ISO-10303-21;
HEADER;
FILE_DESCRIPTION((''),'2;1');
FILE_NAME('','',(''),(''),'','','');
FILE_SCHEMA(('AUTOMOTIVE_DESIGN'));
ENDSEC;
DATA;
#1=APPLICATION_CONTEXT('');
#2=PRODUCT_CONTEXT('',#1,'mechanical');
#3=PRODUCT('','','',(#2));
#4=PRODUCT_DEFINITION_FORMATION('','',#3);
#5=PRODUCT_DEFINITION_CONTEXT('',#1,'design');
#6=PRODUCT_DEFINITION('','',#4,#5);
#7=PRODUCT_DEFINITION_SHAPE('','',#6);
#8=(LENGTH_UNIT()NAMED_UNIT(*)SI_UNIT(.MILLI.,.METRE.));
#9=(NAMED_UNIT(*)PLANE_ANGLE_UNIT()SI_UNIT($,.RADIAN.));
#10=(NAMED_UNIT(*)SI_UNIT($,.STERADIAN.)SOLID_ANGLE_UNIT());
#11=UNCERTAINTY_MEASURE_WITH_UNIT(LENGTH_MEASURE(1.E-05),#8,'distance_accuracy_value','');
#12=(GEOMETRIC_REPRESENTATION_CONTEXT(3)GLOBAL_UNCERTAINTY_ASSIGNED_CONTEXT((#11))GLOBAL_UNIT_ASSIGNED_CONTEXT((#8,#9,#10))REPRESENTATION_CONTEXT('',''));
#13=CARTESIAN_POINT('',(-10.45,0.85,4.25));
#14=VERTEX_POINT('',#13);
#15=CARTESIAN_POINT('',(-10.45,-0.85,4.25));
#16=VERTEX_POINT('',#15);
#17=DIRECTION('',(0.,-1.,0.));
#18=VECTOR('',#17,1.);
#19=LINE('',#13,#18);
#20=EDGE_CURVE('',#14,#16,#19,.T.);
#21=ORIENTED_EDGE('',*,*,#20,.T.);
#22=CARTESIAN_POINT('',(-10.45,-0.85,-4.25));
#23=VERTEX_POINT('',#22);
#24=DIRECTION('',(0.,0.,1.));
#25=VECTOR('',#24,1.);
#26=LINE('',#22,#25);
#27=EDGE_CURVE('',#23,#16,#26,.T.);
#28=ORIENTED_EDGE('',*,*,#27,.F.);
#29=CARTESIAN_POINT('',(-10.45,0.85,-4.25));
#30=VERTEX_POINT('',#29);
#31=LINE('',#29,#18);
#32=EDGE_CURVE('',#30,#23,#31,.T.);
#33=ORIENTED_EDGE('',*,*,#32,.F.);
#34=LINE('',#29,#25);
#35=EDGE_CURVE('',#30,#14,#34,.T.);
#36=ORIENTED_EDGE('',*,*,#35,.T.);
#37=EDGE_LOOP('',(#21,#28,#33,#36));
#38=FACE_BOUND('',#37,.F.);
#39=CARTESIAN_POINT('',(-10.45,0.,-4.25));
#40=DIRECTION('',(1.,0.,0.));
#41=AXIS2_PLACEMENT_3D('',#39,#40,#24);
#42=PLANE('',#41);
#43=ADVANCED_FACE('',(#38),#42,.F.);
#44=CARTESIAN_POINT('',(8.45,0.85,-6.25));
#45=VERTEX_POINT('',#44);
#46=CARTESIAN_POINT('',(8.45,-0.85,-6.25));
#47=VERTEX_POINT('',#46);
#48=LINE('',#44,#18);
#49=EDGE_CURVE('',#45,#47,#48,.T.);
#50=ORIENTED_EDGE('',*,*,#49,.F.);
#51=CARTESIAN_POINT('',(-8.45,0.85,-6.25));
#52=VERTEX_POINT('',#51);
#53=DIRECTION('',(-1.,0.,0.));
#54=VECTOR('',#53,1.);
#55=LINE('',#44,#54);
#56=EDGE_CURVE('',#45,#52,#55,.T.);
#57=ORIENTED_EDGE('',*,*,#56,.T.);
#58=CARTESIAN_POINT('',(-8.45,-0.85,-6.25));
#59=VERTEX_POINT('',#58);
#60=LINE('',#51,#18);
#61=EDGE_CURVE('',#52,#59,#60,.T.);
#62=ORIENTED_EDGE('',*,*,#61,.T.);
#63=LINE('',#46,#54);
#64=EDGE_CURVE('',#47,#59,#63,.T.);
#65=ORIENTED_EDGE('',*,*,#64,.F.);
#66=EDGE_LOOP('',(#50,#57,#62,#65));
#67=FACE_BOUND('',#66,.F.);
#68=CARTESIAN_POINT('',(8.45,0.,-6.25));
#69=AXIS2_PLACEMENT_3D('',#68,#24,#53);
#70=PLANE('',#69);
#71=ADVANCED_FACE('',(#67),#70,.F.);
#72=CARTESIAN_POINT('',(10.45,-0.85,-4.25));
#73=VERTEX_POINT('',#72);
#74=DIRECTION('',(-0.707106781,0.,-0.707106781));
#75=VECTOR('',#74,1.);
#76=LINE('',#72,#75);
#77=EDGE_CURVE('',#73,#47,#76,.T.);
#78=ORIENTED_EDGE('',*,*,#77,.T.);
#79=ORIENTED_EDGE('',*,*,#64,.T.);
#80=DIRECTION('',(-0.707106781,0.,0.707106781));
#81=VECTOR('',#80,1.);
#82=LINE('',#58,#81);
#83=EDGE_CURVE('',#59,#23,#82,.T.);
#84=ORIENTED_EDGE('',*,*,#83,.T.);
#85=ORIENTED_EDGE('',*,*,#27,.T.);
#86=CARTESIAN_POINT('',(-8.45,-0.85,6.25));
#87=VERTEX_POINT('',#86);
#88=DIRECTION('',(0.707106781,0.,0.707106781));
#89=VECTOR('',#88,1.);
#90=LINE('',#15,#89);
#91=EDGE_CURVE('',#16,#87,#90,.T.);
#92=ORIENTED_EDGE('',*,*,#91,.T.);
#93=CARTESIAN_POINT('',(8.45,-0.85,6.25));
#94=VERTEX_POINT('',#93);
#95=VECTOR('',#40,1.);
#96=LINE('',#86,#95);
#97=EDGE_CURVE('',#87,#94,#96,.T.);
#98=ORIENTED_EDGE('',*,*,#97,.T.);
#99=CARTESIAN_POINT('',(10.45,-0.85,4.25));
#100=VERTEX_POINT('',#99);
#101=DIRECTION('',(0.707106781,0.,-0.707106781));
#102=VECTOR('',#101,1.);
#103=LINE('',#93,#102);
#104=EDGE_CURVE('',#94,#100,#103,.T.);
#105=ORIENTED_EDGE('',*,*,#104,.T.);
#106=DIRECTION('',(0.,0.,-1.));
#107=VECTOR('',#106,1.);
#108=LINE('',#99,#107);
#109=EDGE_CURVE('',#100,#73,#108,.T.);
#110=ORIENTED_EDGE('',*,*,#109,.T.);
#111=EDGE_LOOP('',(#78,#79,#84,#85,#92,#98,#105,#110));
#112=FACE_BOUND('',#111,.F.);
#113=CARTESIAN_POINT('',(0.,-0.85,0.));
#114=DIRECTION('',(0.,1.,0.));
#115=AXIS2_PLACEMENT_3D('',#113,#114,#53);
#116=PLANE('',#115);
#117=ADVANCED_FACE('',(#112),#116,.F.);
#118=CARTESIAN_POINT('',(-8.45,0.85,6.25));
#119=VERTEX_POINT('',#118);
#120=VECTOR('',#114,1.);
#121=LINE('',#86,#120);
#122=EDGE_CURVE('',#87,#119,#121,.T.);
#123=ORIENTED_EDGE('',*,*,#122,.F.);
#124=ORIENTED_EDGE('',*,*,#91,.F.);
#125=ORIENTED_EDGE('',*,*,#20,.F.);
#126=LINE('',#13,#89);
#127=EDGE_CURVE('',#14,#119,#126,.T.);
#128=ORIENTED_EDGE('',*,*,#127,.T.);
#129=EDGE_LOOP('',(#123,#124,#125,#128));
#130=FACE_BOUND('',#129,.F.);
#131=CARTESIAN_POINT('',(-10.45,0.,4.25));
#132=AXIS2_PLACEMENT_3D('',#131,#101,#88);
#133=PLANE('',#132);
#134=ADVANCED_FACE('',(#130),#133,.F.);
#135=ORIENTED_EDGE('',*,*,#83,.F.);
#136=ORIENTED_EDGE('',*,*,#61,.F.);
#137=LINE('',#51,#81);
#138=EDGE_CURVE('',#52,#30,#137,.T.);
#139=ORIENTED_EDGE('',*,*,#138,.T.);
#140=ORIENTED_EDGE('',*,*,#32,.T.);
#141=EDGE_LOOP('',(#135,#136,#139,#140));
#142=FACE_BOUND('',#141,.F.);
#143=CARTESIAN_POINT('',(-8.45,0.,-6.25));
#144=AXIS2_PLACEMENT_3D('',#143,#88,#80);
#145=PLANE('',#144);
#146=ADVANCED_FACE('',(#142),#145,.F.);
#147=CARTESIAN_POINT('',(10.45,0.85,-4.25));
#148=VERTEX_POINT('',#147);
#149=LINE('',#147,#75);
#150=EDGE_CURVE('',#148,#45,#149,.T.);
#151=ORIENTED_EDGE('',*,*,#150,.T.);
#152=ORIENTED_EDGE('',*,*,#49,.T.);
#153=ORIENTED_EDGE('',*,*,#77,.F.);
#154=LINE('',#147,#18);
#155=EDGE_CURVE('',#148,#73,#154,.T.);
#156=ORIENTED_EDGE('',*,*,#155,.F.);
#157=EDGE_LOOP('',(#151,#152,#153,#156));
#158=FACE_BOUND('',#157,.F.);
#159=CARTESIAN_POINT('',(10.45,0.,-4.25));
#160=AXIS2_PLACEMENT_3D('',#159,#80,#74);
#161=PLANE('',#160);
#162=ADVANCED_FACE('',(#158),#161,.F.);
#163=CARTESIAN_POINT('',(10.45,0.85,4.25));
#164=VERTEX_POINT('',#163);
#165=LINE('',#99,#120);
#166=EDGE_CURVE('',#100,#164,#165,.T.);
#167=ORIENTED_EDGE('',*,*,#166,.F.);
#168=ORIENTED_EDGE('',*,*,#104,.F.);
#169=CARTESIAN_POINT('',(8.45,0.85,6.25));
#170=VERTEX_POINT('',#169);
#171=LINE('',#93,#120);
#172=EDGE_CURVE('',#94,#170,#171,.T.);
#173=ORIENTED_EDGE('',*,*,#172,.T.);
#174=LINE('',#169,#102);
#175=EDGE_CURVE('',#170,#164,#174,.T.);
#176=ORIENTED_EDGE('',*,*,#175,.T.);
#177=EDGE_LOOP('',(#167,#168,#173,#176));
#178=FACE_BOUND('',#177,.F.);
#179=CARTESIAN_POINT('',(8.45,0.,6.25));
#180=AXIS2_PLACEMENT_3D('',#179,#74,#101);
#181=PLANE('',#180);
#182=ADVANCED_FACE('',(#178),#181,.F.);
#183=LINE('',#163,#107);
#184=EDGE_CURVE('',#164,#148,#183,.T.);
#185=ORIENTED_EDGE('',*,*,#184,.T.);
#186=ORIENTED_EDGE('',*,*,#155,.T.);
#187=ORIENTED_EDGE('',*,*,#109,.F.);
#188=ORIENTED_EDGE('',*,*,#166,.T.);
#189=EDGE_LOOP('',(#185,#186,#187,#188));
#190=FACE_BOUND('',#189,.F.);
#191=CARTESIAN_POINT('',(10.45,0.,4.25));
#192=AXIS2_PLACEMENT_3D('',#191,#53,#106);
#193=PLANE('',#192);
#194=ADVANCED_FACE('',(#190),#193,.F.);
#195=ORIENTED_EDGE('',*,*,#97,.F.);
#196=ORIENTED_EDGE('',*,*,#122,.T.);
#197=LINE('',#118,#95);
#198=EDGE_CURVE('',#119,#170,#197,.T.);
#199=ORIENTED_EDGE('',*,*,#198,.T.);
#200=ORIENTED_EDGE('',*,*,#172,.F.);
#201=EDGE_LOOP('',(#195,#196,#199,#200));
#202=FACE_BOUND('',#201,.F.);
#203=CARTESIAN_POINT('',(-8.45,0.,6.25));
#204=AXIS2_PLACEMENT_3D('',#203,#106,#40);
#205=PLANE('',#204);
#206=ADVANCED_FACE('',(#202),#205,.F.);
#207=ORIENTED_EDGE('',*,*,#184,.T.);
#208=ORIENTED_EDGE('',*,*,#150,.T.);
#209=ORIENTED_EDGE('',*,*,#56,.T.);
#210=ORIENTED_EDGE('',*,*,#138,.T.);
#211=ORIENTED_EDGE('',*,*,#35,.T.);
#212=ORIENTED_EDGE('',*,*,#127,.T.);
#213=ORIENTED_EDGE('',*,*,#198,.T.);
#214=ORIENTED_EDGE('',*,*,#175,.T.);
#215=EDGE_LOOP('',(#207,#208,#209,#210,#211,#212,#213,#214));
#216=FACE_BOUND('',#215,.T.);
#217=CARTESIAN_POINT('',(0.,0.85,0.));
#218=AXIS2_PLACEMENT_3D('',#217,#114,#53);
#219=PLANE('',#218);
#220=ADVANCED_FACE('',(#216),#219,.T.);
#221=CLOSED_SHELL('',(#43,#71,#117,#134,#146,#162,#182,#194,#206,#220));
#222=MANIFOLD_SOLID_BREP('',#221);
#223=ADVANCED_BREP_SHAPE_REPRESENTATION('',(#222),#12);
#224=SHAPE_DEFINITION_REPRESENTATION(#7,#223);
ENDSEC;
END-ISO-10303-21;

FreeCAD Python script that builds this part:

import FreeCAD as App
import Part
import Sketcher
from FreeCAD import Vector
Q = App.Units.Quantity

doc = App.newDocument("Part")
body = doc.addObject("PartDesign::Body", "Body")

# Sketch on XZ plane
sketch1 = doc.addObject("Sketcher::SketchObject", "Sketch")
body.addObject(sketch1)
sketch1.AttachmentSupport = (doc.XZ_Plane, [""])
sketch1.MapMode = "FlatFace"
sketch1.addGeometry([
    Part.LineSegment(Vector(-10.4, 4.2, 0), Vector(-8.4, 6.2, 0)),  # 0
    Part.LineSegment(Vector(-8.4, 6.2, 0), Vector(8.4, 6.2, 0)),  # 1
    Part.LineSegment(Vector(8.4, 6.2, 0), Vector(10.4, 4.2, 0)),  # 2
    Part.LineSegment(Vector(10.4, 4.2, 0), Vector(10.4, -4.2, 0)),  # 3
    Part.LineSegment(Vector(10.4, -4.2, 0), Vector(8.4, -6.2, 0)),  # 4
    Part.LineSegment(Vector(8.4, -6.2, 0), Vector(-8.4, -6.2, 0)),  # 5
    Part.LineSegment(Vector(-8.4, -6.2, 0), Vector(-10.4, -4.2, 0)),  # 6
    Part.LineSegment(Vector(-10.4, -4.2, 0), Vector(-10.4, 4.2, 0)),  # 7
], False)
sketch1.addConstraint([
    Sketcher.Constraint("Coincident", 0, 2, 1, 1),
    Sketcher.Constraint("Coincident", 1, 2, 2, 1),
    Sketcher.Constraint("Coincident", 2, 2, 3, 1),
    Sketcher.Constraint("Coincident", 3, 2, 4, 1),
    Sketcher.Constraint("Coincident", 4, 2, 5, 1),
    Sketcher.Constraint("Coincident", 5, 2, 6, 1),
    Sketcher.Constraint("Coincident", 6, 2, 7, 1),
    Sketcher.Constraint("Coincident", 7, 2, 0, 1),
    Sketcher.Constraint("Horizontal", 1),
    Sketcher.Constraint("Vertical", 3),
    Sketcher.Constraint("Horizontal", 5),
    Sketcher.Constraint("Vertical", 7),
    Sketcher.Constraint("Symmetric", 0, 2, 4, 2, -1, 1),
    Sketcher.Constraint("Symmetric", 2, 2, 6, 2, -1, 1),
    Sketcher.Constraint("Perpendicular", 0, 2),
    Sketcher.Constraint("Perpendicular", 2, 4),
    Sketcher.Constraint("Perpendicular", 4, 6),
    Sketcher.Constraint("Horizontal", 3, 2, 6, 2),
    Sketcher.Constraint("Vertical", 1, 2, 4, 2),
    Sketcher.Constraint("DistanceX", 1, 2, 2, 2, Q("2 mm")),
    Sketcher.Constraint("DistanceY", 4, 2, 1, 2, Q("12.5 mm")),
    Sketcher.Constraint("DistanceX", 6, 2, 3, 2, Q("20.9 mm")),
])
pad1 = doc.addObject("PartDesign::Pad", "Pad")
body.addObject(pad1)
pad1.Profile = sketch1
pad1.Length = 1.7
pad1.Midplane = True

doc.recompute()
